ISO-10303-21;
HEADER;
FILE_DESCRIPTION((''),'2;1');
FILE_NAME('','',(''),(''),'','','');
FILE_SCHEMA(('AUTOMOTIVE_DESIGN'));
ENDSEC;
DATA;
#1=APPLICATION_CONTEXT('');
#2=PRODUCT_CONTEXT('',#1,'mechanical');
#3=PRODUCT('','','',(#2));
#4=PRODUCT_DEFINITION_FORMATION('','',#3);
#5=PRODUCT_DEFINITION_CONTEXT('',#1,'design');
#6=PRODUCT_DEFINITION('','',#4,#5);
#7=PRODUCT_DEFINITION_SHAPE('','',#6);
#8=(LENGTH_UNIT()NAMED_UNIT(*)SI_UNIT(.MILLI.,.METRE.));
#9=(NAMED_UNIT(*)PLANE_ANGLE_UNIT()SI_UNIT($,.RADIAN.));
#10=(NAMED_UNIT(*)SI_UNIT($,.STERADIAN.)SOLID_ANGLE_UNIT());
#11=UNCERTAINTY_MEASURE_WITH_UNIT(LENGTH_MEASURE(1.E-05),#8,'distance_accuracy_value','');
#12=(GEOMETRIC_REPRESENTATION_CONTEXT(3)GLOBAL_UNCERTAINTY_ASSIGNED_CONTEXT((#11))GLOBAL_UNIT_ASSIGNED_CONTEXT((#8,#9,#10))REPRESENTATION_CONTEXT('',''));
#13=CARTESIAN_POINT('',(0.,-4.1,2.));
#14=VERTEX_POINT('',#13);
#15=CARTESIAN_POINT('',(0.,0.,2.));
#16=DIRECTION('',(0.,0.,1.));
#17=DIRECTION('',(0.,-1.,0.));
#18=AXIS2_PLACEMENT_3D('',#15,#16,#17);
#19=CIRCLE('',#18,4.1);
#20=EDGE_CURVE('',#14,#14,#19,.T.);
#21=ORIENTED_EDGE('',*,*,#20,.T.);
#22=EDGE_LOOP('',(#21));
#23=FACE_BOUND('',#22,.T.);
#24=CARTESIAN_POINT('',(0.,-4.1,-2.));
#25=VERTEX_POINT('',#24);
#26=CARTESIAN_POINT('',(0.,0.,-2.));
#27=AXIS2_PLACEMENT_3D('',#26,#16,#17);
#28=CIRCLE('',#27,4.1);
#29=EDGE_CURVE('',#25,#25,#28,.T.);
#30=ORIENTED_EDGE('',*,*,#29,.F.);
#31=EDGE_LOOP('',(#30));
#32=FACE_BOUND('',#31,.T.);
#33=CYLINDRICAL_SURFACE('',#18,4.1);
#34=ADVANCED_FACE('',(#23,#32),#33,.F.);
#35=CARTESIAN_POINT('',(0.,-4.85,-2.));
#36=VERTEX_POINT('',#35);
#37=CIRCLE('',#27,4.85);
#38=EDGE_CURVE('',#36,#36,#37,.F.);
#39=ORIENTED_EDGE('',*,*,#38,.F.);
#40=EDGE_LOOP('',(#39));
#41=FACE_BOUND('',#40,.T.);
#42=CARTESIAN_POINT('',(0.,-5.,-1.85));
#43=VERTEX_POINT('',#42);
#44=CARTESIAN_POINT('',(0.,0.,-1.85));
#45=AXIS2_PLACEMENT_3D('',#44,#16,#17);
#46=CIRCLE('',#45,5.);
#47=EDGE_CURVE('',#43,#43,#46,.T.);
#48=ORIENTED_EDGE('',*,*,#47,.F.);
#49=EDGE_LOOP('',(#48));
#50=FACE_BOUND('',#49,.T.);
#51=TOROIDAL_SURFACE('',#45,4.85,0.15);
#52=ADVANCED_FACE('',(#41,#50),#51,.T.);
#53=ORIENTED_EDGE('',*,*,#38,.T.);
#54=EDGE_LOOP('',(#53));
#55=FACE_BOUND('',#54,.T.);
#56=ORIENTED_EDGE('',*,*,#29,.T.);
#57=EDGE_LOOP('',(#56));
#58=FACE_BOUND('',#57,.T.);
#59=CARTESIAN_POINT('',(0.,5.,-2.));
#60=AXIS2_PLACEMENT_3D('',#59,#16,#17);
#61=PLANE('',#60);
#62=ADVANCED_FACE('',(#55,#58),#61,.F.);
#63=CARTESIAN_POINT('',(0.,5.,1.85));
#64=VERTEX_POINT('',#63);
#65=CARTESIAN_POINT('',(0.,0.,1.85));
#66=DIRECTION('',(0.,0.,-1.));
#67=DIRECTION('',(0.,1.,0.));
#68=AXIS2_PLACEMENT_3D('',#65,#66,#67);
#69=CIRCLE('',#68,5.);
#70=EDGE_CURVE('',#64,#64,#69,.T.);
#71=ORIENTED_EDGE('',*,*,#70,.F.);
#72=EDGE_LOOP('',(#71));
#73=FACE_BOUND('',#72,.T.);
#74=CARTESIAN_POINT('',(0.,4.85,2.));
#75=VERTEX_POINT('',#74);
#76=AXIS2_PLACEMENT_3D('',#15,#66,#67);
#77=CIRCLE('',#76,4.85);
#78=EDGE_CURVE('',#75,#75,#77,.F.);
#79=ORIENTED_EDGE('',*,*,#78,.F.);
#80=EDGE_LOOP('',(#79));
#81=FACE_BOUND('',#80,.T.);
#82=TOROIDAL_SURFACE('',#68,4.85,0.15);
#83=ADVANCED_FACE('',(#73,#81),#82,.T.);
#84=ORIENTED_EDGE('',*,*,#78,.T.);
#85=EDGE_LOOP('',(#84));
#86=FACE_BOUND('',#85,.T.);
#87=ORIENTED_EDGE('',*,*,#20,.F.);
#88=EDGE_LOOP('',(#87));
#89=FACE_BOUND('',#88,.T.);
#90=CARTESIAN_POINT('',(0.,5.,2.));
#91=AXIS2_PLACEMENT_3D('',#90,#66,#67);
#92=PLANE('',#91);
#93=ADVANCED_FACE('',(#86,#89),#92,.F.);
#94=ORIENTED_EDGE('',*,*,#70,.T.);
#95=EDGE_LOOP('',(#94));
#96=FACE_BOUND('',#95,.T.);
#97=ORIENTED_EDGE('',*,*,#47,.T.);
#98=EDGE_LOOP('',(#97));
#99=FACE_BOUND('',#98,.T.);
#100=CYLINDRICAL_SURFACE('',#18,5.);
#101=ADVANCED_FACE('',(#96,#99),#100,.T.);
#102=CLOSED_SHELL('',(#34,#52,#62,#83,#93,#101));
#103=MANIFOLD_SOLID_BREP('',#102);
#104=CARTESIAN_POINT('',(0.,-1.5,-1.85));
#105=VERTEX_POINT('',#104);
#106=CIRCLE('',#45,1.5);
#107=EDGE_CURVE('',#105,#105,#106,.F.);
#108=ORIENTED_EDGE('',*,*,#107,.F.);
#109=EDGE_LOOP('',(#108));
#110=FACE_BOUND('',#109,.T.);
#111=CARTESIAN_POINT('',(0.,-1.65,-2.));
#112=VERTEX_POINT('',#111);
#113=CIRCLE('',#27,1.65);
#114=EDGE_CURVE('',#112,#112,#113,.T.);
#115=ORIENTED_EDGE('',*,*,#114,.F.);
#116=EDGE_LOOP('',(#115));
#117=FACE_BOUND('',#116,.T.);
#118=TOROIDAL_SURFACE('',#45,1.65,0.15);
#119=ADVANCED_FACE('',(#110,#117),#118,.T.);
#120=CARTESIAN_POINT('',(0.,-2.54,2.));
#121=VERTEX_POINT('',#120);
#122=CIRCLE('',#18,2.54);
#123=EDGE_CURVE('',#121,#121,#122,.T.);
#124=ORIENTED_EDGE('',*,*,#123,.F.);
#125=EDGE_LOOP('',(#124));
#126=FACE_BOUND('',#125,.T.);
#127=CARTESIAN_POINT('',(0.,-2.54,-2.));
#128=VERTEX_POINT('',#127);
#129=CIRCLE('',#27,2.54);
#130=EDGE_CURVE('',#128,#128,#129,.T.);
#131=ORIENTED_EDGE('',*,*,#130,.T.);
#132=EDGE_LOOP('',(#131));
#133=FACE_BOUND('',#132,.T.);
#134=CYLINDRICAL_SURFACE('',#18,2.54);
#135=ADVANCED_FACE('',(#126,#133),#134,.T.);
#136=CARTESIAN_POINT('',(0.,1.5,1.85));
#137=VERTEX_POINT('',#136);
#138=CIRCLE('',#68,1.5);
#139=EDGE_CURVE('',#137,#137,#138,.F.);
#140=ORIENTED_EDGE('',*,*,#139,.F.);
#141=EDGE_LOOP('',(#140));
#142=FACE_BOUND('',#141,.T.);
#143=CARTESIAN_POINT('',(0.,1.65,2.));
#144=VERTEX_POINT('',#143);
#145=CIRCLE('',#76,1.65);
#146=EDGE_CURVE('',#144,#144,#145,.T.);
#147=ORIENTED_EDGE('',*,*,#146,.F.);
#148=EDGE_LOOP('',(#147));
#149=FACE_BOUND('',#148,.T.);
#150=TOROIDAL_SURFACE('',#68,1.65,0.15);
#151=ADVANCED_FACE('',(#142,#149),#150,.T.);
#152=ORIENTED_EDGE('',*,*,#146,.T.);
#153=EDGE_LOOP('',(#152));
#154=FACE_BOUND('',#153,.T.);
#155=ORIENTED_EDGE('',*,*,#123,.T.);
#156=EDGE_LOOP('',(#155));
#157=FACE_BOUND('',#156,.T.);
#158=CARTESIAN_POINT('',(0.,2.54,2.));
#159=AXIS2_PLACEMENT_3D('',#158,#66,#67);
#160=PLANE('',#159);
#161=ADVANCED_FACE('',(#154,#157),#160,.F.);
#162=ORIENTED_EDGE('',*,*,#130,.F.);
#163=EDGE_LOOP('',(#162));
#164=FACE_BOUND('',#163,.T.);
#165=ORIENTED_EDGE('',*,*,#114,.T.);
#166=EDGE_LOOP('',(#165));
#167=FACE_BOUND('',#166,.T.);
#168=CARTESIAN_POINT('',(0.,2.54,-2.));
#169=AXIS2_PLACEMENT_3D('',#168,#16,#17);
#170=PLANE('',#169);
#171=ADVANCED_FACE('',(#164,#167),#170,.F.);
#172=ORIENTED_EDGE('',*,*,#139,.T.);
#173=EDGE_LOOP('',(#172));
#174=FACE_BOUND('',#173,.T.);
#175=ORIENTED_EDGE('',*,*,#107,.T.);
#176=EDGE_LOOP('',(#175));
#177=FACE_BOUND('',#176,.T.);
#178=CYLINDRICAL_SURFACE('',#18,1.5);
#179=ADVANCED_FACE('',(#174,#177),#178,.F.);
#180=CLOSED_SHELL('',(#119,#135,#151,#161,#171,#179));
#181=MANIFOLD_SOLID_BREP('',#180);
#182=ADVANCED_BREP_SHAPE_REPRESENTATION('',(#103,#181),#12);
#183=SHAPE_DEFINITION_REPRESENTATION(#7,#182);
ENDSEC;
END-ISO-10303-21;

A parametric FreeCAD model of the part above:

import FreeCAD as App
import Part
import Sketcher
Q = App.Units.Quantity


def edges_at(feature, points):
    """Names of the edges that pass closest to the given points."""
    edges = feature.Shape.Edges
    near = lambda p: min(range(len(edges)), key=lambda i: edges[i].distToShape(Part.Vertex(*p))[0])
    return sorted({f"Edge{near(p) + 1}" for p in points})

doc = App.newDocument("Part")
params = doc.addObject("Spreadsheet::Sheet", "Params")
for row, (alias, value) in enumerate([
    ("sketch1_height", "4 mm"),
    ("sketch1_width", "0.9 mm"),
    ("sketch1_width2", "1.04 mm"),
    ("revolution_angle", "360 deg"),
    ("fillet_radius", "0.15 mm"),
    ("fillet2_radius", "0.15 mm"),
], start=1):
    params.set(f"A{row}", alias)
    params.set(f"B{row}", "=" + value)
    params.setAlias(f"B{row}", alias)

body = doc.addObject("PartDesign::Body", "Body")
body.AllowCompound = True

# Sketch on YZ plane
sketch1 = doc.addObject("Sketcher::SketchObject", "Sketch")
body.addObject(sketch1)
sketch1.AttachmentSupport = (doc.YZ_Plane, [""])
sketch1.MapMode = "FlatFace"
sketch1.addGeometry(Part.LineSegment(App.Vector(5, 2, 0), App.Vector(4.1, 2, 0)), False)
sketch1.addGeometry(Part.LineSegment(App.Vector(4.1, 2, 0), App.Vector(4.1, -2, 0)), False)
sketch1.addGeometry(Part.LineSegment(App.Vector(4.1, -2, 0), App.Vector(5, -2, 0)), False)
sketch1.addGeometry(Part.LineSegment(App.Vector(5, -2, 0), App.Vector(5, 2, 0)), False)
sketch1.addGeometry(Part.LineSegment(App.Vector(2.5, 2, 0), App.Vector(1.5, 2, 0)), False)
sketch1.addGeometry(Part.LineSegment(App.Vector(1.5, 2, 0), App.Vector(1.5, -2, 0)), False)
sketch1.addGeometry(Part.LineSegment(App.Vector(1.5, -2, 0), App.Vector(2.5, -2, 0)), False)
sketch1.addGeometry(Part.LineSegment(App.Vector(2.5, -2, 0), App.Vector(2.5, 2, 0)), False)
sketch1.addConstraint(Sketcher.Constraint("Coincident", 0, 2, 1, 1))
sketch1.addConstraint(Sketcher.Constraint("Coincident", 1, 2, 2, 1))
sketch1.addConstraint(Sketcher.Constraint("Coincident", 2, 2, 3, 1))
sketch1.addConstraint(Sketcher.Constraint("Coincident", 3, 2, 0, 1))
sketch1.addConstraint(Sketcher.Constraint("Coincident", 4, 2, 5, 1))
sketch1.addConstraint(Sketcher.Constraint("Coincident", 5, 2, 6, 1))
sketch1.addConstraint(Sketcher.Constraint("Coincident", 6, 2, 7, 1))
sketch1.addConstraint(Sketcher.Constraint("Coincident", 7, 2, 4, 1))
sketch1.addConstraint(Sketcher.Constraint("Horizontal", 0))
sketch1.addConstraint(Sketcher.Constraint("Vertical", 1))
sketch1.addConstraint(Sketcher.Constraint("Horizontal", 2))
sketch1.addConstraint(Sketcher.Constraint("Vertical", 3))
sketch1.addConstraint(Sketcher.Constraint("Horizontal", 4))
sketch1.addConstraint(Sketcher.Constraint("Vertical", 5))
sketch1.addConstraint(Sketcher.Constraint("Horizontal", 6))
sketch1.addConstraint(Sketcher.Constraint("Vertical", 7))
sketch1.addConstraint(Sketcher.Constraint("Horizontal", 3, 2, 4, 2))
sketch1.addConstraint(Sketcher.Constraint("Horizontal", 2, 2, 5, 2))
sketch1.addConstraint(Sketcher.Constraint("DistanceY", 1, 2, 1, 1, Q("4 mm")))
sketch1.addConstraint(Sketcher.Constraint("DistanceX", 0, 2, 0, 1, Q("0.9 mm")))
sketch1.addConstraint(Sketcher.Constraint("DistanceY", -1, 1, 0, 2, Q("2 mm")))
sketch1.addConstraint(Sketcher.Constraint("DistanceX", -1, 1, 2, 2, Q("5 mm")))
sketch1.addConstraint(Sketcher.Constraint("DistanceX", 4, 2, 4, 1, Q("1.04 mm")))
sketch1.addConstraint(Sketcher.Constraint("DistanceX", -1, 1, 4, 2, Q("1.5 mm")))
sketch1.setExpression("Constraints[18]", "Params.sketch1_height")
sketch1.setExpression("Constraints[19]", "Params.sketch1_width")
sketch1.setExpression("Constraints[22]", "Params.sketch1_width2")
revolution = doc.addObject("PartDesign::Revolution", "Revolution")
body.addObject(revolution)
revolution.Profile = sketch1
revolution.ReferenceAxis = (sketch1, ["V_Axis"])
revolution.setExpression("Angle", "Params.revolution_angle")
doc.recompute()

fillet = doc.addObject("PartDesign::Fillet", "Fillet")
body.addObject(fillet)
fillet.Base = (revolution, edges_at(revolution, [(0, 5, 2), (0, 5, -2)]))
fillet.setExpression("Radius", "Params.fillet_radius")
doc.recompute()

fillet2 = doc.addObject("PartDesign::Fillet", "Fillet001")
body.addObject(fillet2)
fillet2.Base = (fillet, edges_at(fillet, [(0, 1.5, -2), (0, 1.5, 2)]))
fillet2.setExpression("Radius", "Params.fillet2_radius")

doc.recompute()
